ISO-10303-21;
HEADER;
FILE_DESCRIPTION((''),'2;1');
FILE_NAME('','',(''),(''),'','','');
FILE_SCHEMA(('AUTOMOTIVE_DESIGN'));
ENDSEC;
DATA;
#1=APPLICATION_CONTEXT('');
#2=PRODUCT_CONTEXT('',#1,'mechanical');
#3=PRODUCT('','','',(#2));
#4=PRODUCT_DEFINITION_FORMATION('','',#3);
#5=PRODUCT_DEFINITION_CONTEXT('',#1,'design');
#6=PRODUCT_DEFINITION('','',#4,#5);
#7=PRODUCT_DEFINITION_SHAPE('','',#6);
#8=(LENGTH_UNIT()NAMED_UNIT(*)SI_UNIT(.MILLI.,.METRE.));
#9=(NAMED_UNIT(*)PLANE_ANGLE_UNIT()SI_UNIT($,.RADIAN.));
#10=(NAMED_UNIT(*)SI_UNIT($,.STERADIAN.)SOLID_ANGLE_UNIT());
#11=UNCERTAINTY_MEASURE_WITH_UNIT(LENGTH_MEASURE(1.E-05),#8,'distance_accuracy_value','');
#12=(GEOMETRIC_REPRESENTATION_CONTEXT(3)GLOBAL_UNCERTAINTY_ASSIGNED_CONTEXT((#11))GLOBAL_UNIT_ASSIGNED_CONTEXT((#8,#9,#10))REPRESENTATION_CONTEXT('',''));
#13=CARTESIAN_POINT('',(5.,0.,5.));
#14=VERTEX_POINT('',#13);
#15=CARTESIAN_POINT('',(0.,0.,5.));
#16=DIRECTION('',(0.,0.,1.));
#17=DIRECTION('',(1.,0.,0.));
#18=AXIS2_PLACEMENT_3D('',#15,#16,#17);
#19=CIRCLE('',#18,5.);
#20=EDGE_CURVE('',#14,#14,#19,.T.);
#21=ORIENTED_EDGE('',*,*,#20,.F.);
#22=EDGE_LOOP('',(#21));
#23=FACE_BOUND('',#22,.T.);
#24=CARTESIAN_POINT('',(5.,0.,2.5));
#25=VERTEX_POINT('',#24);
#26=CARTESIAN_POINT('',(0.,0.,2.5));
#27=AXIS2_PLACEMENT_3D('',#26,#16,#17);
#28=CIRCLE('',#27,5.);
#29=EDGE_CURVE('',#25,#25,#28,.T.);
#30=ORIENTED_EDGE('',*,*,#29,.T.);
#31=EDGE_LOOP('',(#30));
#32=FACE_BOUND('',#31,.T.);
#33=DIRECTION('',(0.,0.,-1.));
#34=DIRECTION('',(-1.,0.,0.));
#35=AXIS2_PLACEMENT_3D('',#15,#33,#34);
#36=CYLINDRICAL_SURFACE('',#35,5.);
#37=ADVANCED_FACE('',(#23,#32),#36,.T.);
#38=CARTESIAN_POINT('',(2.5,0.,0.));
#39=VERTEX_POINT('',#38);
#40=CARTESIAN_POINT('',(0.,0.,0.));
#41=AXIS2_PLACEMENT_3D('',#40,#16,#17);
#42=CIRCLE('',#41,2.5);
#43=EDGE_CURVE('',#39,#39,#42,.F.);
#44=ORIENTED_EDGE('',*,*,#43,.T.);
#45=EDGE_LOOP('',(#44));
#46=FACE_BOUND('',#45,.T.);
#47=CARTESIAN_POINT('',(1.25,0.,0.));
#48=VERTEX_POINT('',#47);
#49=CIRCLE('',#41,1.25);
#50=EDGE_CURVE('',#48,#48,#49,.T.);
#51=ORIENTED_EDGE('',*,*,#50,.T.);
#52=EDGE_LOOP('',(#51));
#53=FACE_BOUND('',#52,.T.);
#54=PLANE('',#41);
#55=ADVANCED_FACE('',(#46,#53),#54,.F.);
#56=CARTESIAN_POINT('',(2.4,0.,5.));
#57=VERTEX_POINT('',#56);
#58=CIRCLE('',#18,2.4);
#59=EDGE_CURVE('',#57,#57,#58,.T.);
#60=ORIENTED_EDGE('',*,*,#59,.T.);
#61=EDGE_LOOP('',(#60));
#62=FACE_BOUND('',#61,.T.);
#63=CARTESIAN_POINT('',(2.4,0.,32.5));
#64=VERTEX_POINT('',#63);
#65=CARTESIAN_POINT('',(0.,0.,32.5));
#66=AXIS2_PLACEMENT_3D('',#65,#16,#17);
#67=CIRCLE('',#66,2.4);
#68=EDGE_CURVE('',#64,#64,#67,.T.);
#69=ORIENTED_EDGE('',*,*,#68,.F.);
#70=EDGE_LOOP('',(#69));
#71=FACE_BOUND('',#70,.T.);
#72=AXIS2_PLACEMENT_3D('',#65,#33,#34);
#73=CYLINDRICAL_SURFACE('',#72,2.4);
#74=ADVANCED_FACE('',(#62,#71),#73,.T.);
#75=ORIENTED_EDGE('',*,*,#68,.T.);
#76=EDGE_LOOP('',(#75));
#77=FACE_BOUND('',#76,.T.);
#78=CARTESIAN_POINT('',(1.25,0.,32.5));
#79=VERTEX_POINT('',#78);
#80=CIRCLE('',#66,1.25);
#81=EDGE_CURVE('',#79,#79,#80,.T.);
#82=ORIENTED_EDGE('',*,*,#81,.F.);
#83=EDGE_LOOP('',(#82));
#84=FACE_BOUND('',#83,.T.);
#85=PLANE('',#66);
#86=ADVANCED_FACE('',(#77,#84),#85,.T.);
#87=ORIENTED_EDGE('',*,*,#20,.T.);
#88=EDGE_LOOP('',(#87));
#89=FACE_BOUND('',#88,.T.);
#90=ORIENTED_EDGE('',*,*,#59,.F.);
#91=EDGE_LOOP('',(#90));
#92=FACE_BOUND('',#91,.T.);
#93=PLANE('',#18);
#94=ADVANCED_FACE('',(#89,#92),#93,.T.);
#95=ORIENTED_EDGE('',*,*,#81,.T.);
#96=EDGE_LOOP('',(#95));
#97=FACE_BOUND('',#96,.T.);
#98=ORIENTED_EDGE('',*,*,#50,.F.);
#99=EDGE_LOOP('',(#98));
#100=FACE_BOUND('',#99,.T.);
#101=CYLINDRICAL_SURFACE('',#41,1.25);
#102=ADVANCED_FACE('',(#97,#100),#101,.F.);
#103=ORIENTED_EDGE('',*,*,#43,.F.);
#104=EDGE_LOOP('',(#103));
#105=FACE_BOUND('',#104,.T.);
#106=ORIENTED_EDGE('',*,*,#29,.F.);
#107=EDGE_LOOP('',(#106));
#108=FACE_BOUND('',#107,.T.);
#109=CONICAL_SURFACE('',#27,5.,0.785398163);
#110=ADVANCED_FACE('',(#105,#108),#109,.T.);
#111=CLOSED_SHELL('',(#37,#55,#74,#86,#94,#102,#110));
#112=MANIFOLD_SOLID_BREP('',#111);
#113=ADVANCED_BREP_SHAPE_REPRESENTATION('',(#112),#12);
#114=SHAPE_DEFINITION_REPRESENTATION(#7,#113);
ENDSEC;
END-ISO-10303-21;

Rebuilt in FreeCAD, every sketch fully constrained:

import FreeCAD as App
import Part
import Sketcher

V = App.Vector


def edges_at(feature, points):
    """Names of the edges that pass closest to the given points."""
    edges = feature.Shape.Edges
    near = lambda p: min(range(len(edges)), key=lambda i: edges[i].distToShape(Part.Vertex(*p))[0])
    return sorted({f"Edge{near(p) + 1}" for p in points})

doc = App.newDocument("Part")
body = doc.addObject("PartDesign::Body", "Body")

# Sketch on XY plane
sketch1 = body.newObject("Sketcher::SketchObject", "Sketch")
sketch1.AttachmentSupport = (doc.getObject("XY_Plane"), [""])
sketch1.MapMode = "FlatFace"
sketch1.addGeometry(Part.Circle(V(0, 0, 0), V(0, 0, 1), 5), False)
sketch1.addConstraint(Sketcher.Constraint("Coincident", 0, 3, -1, 1))
sketch1.addConstraint(Sketcher.Constraint("Diameter", 0, 10.0))
pad1 = body.newObject("PartDesign::Pad", "Pad")
pad1.Profile = sketch1
pad1.Length = 5

# Sketch on XY plane
sketch2 = body.newObject("Sketcher::SketchObject", "Sketch001")
sketch2.AttachmentSupport = (doc.getObject("XY_Plane"), [""])
sketch2.MapMode = "FlatFace"
sketch2.AttachmentOffset = App.Placement(V(0, 0, 5), App.Rotation())
sketch2.addGeometry(Part.Circle(V(0, 0, 0), V(0, 0, 1), 2.4), False)
sketch2.addConstraint(Sketcher.Constraint("Coincident", 0, 3, -1, 1))
sketch2.addConstraint(Sketcher.Constraint("Diameter", 0, 4.8))
pad2 = body.newObject("PartDesign::Pad", "Pad001")
pad2.Profile = sketch2
pad2.Length = 27.5
doc.recompute()

chamfer = body.newObject("PartDesign::Chamfer", "Chamfer")
chamfer.Base = (pad2, edges_at(pad2, [(-5, 0, 0)]))
chamfer.Size = 2.5

# Sketch on XY plane
sketch3 = body.newObject("Sketcher::SketchObject", "Sketch002")
sketch3.AttachmentSupport = (doc.getObject("XY_Plane"), [""])
sketch3.MapMode = "FlatFace"
sketch3.AttachmentOffset = App.Placement(V(0, 0, 32.5), App.Rotation())
sketch3.addGeometry(Part.Circle(V(0, 0, 0), V(0, 0, 1), 1.2), False)
sketch3.addConstraint(Sketcher.Constraint("Coincident", 0, 3, -1, 1))
sketch3.addConstraint(Sketcher.Constraint("Diameter", 0, 2.5))
pocket1 = body.newObject("PartDesign::Pocket", "Pocket")
pocket1.Profile = sketch3
pocket1.Type = "ThroughAll"

doc.recompute()
